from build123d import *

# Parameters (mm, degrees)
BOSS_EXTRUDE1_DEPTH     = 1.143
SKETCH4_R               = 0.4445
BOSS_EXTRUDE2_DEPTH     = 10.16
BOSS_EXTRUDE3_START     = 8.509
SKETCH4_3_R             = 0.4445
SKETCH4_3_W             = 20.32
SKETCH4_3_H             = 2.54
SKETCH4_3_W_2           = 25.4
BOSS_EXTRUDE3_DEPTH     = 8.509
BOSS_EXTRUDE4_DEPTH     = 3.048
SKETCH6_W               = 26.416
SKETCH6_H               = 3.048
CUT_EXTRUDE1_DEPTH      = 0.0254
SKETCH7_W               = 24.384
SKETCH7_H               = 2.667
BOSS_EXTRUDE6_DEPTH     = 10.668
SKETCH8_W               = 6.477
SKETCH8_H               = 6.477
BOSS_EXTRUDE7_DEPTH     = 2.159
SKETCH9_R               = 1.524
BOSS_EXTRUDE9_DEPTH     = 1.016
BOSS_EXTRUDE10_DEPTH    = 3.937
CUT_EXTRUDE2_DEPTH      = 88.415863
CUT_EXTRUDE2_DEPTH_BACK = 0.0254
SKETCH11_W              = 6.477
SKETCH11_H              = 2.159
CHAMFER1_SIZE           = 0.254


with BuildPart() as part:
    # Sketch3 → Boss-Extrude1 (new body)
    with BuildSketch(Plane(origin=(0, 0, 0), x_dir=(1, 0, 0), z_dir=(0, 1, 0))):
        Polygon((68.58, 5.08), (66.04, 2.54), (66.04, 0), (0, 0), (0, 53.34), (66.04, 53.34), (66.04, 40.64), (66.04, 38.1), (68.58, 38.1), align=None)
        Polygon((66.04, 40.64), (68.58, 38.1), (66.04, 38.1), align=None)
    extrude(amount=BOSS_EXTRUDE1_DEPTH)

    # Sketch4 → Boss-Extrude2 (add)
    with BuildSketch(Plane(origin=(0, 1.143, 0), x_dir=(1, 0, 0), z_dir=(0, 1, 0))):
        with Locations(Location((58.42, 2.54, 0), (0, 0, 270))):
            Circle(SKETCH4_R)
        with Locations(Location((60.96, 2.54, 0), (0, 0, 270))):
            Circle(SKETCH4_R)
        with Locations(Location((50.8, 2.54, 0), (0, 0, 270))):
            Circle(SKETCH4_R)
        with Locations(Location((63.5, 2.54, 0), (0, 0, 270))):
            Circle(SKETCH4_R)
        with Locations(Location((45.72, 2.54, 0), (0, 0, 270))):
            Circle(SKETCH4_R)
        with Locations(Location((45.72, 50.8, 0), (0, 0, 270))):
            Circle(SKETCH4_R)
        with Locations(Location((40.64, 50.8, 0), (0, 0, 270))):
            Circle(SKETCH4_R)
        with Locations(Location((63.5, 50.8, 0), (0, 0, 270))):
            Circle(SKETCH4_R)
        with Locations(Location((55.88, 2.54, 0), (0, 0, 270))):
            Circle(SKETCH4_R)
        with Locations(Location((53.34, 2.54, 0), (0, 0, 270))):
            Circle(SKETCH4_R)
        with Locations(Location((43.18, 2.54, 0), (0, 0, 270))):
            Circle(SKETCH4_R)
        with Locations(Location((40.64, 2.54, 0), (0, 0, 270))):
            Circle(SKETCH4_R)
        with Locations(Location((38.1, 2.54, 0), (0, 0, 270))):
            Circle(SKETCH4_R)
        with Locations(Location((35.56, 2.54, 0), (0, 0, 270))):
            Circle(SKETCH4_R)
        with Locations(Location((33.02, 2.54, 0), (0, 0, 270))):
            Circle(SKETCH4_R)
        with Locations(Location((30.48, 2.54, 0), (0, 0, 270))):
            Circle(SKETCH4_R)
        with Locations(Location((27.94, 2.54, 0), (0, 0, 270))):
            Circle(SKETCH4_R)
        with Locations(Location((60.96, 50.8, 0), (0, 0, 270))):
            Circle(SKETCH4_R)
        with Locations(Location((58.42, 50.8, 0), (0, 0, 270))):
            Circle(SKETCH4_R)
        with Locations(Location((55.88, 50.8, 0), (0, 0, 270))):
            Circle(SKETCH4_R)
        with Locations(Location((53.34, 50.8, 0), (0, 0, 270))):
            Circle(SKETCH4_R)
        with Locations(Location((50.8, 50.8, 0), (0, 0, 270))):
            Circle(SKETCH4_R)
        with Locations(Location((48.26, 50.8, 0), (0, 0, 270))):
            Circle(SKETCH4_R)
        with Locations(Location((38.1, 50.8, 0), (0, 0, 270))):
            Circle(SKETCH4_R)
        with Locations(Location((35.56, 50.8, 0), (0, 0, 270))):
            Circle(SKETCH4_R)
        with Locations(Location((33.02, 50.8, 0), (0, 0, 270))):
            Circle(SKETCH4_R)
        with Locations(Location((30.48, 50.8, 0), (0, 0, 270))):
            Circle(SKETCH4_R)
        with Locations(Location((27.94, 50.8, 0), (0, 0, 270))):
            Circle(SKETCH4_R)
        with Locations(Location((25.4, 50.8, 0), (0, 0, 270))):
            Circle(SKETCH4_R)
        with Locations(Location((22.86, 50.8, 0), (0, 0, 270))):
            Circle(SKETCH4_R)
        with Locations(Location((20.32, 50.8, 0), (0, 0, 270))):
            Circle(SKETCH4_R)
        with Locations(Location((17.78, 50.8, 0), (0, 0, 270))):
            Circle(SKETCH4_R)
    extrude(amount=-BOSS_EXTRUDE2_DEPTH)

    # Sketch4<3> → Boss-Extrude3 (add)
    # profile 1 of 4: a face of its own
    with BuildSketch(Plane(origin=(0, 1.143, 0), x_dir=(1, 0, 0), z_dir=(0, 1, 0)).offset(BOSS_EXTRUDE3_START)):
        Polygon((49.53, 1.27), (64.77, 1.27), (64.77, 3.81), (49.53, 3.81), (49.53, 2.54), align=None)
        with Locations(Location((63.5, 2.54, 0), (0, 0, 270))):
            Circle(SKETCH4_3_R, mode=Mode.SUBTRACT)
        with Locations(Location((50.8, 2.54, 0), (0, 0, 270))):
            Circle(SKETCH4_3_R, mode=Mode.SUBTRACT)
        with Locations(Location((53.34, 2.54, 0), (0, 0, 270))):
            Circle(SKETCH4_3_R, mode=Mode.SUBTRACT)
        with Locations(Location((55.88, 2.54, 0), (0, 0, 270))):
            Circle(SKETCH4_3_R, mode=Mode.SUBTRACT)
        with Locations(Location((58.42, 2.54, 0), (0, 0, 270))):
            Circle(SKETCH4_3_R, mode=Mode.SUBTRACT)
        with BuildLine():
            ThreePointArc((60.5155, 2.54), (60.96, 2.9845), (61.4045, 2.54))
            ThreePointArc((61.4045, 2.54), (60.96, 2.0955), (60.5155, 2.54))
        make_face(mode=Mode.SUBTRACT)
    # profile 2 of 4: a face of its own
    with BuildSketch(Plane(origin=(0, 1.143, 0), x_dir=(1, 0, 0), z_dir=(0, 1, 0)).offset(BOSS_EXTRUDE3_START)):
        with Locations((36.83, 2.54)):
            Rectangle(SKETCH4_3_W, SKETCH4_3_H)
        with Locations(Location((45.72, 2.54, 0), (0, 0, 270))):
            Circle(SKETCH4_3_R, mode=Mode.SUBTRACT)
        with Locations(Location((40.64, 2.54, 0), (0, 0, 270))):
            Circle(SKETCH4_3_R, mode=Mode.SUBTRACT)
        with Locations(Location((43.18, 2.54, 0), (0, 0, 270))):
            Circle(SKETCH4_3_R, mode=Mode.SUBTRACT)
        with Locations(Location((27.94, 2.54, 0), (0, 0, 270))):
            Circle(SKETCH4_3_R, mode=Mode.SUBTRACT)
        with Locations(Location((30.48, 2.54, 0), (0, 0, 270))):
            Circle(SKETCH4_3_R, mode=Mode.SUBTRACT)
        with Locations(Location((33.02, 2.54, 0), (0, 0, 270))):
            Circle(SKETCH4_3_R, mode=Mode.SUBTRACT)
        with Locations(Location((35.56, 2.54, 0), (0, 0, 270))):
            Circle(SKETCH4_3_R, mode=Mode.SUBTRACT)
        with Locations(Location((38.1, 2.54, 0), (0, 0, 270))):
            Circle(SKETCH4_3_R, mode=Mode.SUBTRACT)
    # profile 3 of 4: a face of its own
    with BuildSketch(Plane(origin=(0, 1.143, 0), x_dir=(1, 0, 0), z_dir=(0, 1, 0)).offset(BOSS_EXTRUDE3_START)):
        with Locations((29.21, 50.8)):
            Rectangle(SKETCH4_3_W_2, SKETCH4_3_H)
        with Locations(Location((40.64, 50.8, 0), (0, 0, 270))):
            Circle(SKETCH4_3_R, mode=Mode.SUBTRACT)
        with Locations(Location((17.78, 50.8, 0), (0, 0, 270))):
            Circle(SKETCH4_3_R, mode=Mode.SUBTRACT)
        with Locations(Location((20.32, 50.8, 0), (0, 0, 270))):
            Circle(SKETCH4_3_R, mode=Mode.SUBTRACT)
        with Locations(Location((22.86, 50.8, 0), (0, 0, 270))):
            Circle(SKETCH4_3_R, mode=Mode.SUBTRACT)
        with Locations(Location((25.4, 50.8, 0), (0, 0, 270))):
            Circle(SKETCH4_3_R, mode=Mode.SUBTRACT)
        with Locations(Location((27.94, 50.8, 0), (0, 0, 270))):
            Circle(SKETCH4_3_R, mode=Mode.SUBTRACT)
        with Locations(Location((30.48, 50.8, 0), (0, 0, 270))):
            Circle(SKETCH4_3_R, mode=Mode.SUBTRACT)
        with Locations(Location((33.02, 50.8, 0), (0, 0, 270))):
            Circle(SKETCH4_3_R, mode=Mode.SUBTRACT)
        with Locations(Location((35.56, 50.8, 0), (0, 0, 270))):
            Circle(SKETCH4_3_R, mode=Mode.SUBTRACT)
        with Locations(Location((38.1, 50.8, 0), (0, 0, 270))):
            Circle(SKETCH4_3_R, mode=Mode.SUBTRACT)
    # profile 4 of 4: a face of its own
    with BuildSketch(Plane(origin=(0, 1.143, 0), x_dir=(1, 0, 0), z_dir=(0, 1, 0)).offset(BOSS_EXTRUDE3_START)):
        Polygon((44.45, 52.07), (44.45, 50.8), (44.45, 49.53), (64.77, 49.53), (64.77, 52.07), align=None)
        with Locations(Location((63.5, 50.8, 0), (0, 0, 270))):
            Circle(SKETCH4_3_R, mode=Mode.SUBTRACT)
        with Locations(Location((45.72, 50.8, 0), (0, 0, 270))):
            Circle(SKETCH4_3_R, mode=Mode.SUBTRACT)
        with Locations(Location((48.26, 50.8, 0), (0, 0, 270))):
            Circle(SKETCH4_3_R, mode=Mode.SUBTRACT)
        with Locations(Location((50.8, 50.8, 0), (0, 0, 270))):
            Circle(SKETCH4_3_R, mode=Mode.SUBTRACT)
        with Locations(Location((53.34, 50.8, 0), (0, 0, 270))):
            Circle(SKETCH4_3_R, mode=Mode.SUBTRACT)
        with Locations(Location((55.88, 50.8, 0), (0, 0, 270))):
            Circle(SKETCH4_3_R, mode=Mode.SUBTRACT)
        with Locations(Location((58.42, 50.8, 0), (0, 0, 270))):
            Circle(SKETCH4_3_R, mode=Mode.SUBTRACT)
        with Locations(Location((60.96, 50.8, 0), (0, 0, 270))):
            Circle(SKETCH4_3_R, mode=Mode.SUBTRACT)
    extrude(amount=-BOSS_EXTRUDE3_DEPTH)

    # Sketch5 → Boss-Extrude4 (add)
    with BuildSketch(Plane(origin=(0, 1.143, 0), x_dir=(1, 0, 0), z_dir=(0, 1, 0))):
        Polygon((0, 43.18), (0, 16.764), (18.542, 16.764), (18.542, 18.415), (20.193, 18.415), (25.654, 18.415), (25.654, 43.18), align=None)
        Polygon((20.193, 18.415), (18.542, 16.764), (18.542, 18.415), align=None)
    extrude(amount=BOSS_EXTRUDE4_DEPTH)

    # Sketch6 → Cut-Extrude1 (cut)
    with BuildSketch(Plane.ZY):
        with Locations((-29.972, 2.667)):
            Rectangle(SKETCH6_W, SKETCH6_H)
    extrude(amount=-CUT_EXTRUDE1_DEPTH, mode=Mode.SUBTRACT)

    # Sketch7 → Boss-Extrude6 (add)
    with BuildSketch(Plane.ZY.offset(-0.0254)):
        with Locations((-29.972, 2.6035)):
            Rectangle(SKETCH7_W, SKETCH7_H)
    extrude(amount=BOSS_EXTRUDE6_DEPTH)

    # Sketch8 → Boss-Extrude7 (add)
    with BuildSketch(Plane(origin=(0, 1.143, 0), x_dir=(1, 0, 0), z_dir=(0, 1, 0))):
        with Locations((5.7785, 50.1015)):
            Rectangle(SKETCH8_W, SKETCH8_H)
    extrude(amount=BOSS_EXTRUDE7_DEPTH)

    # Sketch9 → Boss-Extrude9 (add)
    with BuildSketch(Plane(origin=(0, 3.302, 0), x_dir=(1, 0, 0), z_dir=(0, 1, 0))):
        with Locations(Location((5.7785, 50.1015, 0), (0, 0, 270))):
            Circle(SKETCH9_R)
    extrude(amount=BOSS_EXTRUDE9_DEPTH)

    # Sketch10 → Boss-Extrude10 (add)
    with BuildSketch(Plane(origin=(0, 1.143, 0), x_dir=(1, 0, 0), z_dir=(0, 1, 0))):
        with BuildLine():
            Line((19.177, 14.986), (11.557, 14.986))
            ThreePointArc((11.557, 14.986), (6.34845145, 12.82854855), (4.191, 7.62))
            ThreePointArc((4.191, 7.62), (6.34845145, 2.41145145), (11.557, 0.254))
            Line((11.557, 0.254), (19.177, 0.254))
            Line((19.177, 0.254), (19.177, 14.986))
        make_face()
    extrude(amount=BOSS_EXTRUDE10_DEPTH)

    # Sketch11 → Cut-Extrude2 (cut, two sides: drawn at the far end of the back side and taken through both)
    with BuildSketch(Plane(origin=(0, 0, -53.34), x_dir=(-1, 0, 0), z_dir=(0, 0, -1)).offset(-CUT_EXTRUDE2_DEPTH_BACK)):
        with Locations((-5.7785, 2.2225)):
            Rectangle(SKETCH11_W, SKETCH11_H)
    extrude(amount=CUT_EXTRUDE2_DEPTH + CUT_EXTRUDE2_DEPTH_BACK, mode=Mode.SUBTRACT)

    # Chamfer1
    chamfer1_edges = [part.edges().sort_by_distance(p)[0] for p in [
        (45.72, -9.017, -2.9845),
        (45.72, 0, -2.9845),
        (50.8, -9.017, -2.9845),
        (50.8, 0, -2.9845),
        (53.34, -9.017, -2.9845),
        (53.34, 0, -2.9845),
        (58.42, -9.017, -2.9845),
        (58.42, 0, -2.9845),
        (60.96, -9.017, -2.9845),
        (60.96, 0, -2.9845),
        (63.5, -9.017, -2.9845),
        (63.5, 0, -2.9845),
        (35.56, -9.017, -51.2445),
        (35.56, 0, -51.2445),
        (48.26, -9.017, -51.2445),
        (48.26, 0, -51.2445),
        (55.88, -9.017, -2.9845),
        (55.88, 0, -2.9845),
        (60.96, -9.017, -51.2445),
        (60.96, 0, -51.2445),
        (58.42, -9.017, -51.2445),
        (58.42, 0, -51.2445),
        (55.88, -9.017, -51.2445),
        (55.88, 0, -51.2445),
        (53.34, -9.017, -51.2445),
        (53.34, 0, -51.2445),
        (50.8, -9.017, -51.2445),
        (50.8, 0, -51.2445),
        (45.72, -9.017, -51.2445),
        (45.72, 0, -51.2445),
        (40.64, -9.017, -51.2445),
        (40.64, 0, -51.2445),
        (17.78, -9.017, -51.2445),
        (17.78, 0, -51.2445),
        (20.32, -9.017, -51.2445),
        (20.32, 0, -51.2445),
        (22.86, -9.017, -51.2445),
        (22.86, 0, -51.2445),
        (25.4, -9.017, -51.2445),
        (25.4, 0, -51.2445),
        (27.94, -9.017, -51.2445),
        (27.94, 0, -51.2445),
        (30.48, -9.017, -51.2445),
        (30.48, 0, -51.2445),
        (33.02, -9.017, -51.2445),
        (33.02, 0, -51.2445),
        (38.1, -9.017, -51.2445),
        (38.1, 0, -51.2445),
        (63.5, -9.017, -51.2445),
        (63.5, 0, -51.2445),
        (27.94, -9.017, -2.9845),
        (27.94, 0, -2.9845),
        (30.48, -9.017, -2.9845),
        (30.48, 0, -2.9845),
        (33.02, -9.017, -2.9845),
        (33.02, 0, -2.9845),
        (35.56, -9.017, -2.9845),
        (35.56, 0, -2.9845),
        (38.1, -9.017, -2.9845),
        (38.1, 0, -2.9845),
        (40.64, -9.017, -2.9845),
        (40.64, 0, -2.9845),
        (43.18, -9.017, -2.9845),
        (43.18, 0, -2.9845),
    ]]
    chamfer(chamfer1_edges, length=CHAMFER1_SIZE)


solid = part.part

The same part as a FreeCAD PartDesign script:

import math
import FreeCAD as App
import Part
import Sketcher
Q = App.Units.Quantity


def edges_at(feature, points):
    """Names of the edges that pass closest to the given points."""
    edges = feature.Shape.Edges
    near = lambda p: min(range(len(edges)), key=lambda i: edges[i].distToShape(Part.Vertex(*p))[0])
    return sorted({f"Edge{near(p) + 1}" for p in points})


def add_polygon(sketch, points):
    """Adds a closed chain of lines whose ends are joined by coincident constraints."""
    first, n = sketch.GeometryCount, len(points)
    for a, b in zip(points, points[1:] + points[:1]):
        sketch.addGeometry(Part.LineSegment(App.Vector(*a, 0), App.Vector(*b, 0)), False)
    for i in range(n):
        sketch.addConstraint(Sketcher.Constraint("Coincident", first + i, 2, first + (i + 1) % n, 1))

doc = App.newDocument("Part")
body = doc.addObject("PartDesign::Body", "Body")

# Sketch on XZ plane
sketch1 = body.newObject("Sketcher::SketchObject", "Sketch")
sketch1.AttachmentSupport = (doc.getObject("XZ_Plane"), [""])
sketch1.MapMode = "FlatFace"
add_polygon(sketch1, [(66, -2.5), (68.6, -5.1), (68.6, -38.1), (66, -40.6), (66, -53.3), (0, -53.3), (0, 0), (66, 0)])  # lines 0-7
sketch1.addConstraint(Sketcher.Constraint("Vertical", 1))
sketch1.addConstraint(Sketcher.Constraint("Vertical", 3))
sketch1.addConstraint(Sketcher.Constraint("Horizontal", 4))
sketch1.addConstraint(Sketcher.Constraint("Vertical", 5))
sketch1.addConstraint(Sketcher.Constraint("Horizontal", 6))
sketch1.addConstraint(Sketcher.Constraint("Vertical", 7))
sketch1.addConstraint(Sketcher.Constraint("Coincident", 5, 2, -1, 1))
sketch1.addConstraint(Sketcher.Constraint("Perpendicular", 0, 2))
sketch1.addConstraint(Sketcher.Constraint("Vertical", 3, 2, 6, 2))
sketch1.addConstraint(Sketcher.Constraint("Equal", 0, 2))
sketch1.addConstraint(Sketcher.Constraint("DistanceX", 4, 2, 4, 1, Q("2.6 in")))
sketch1.addConstraint(Sketcher.Constraint("DistanceY", 1, 2, 1, 1, Q("1.3 in")))
sketch1.addConstraint(Sketcher.Constraint("DistanceY", 3, 2, 3, 1, Q("0.5 in")))
sketch1.addConstraint(Sketcher.Constraint("DistanceY", 5, 1, 5, 2, Q("2.1 in")))
sketch1.addConstraint(Sketcher.Constraint("DistanceY", 7, 2, 7, 1, Q("0.1 in")))
pad1 = body.newObject("PartDesign::Pad", "Pad")
pad1.Profile = sketch1
pad1.Length = Q("0.045 in")
pad1.Reversed = True

# Sketch on XZ plane
sketch2 = body.newObject("Sketcher::SketchObject", "Sketch001")
sketch2.AttachmentSupport = (doc.getObject("XZ_Plane"), [""])
sketch2.MapMode = "FlatFace"
sketch2.AttachmentOffset = App.Placement(App.Vector(0, 0, -0.045 * 25.4), App.Rotation())
sketch2.addGeometry(Part.Circle(App.Vector(58.42, -2.54, 0), App.Vector(0, 0, 1), 0.44), False)
sketch2.addGeometry(Part.Circle(App.Vector(60.96, -2.54, 0), App.Vector(0, 0, 1), 0.44), False)
sketch2.addGeometry(Part.Circle(App.Vector(50.8, -2.54, 0), App.Vector(0, 0, 1), 0.44), False)
sketch2.addGeometry(Part.Circle(App.Vector(63.5, -2.54, 0), App.Vector(0, 0, 1), 0.44), False)
sketch2.addGeometry(Part.Circle(App.Vector(45.72, -2.54, 0), App.Vector(0, 0, 1), 0.44), False)
sketch2.addGeometry(Part.Circle(App.Vector(45.72, -50.8, 0), App.Vector(0, 0, 1), 0.44), False)
sketch2.addGeometry(Part.Circle(App.Vector(40.64, -50.8, 0), App.Vector(0, 0, 1), 0.44), False)
sketch2.addGeometry(Part.Circle(App.Vector(63.5, -50.8, 0), App.Vector(0, 0, 1), 0.44), False)
sketch2.addGeometry(Part.Circle(App.Vector(55.88, -2.54, 0), App.Vector(0, 0, 1), 0.44), False)
sketch2.addGeometry(Part.Circle(App.Vector(53.34, -2.54, 0), App.Vector(0, 0, 1), 0.44), False)
sketch2.addGeometry(Part.Circle(App.Vector(43.18, -2.54, 0), App.Vector(0, 0, 1), 0.44), False)
sketch2.addGeometry(Part.Circle(App.Vector(40.64, -2.54, 0), App.Vector(0, 0, 1), 0.44), False)
sketch2.addGeometry(Part.Circle(App.Vector(38.1, -2.54, 0), App.Vector(0, 0, 1), 0.44), False)
sketch2.addGeometry(Part.Circle(App.Vector(35.56, -2.54, 0), App.Vector(0, 0, 1), 0.44), False)
sketch2.addGeometry(Part.Circle(App.Vector(33.02, -2.54, 0), App.Vector(0, 0, 1), 0.44), False)
sketch2.addGeometry(Part.Circle(App.Vector(30.48, -2.54, 0), App.Vector(0, 0, 1), 0.44), False)
sketch2.addGeometry(Part.Circle(App.Vector(27.94, -2.54, 0), App.Vector(0, 0, 1), 0.44), False)
sketch2.addGeometry(Part.Circle(App.Vector(60.96, -50.8, 0), App.Vector(0, 0, 1), 0.44), False)
sketch2.addGeometry(Part.Circle(App.Vector(58.42, -50.8, 0), App.Vector(0, 0, 1), 0.44), False)
sketch2.addGeometry(Part.Circle(App.Vector(55.88, -50.8, 0), App.Vector(0, 0, 1), 0.44), False)
sketch2.addGeometry(Part.Circle(App.Vector(53.34, -50.8, 0), App.Vector(0, 0, 1), 0.44), False)
sketch2.addGeometry(Part.Circle(App.Vector(50.8, -50.8, 0), App.Vector(0, 0, 1), 0.44), False)
sketch2.addGeometry(Part.Circle(App.Vector(48.26, -50.8, 0), App.Vector(0, 0, 1), 0.44), False)
sketch2.addGeometry(Part.Circle(App.Vector(38.1, -50.8, 0), App.Vector(0, 0, 1), 0.44), False)
sketch2.addGeometry(Part.Circle(App.Vector(35.56, -50.8, 0), App.Vector(0, 0, 1), 0.44), False)
sketch2.addGeometry(Part.Circle(App.Vector(33.02, -50.8, 0), App.Vector(0, 0, 1), 0.44), False)
sketch2.addGeometry(Part.Circle(App.Vector(30.48, -50.8, 0), App.Vector(0, 0, 1), 0.44), False)
sketch2.addGeometry(Part.Circle(App.Vector(27.94, -50.8, 0), App.Vector(0, 0, 1), 0.44), False)
sketch2.addGeometry(Part.Circle(App.Vector(25.4, -50.8, 0), App.Vector(0, 0, 1), 0.44), False)
sketch2.addGeometry(Part.Circle(App.Vector(22.86, -50.8, 0), App.Vector(0, 0, 1), 0.44), False)
sketch2.addGeometry(Part.Circle(App.Vector(20.32, -50.8, 0), App.Vector(0, 0, 1), 0.44), False)
sketch2.addGeometry(Part.Circle(App.Vector(17.78, -50.8, 0), App.Vector(0, 0, 1), 0.44), False)
sketch2.addConstraint(Sketcher.Constraint("Equal", 0, 1))
sketch2.addConstraint(Sketcher.Constraint("Equal", 1, 2))
sketch2.addConstraint(Sketcher.Constraint("Equal", 2, 3))
sketch2.addConstraint(Sketcher.Constraint("Equal", 3, 4))
sketch2.addConstraint(Sketcher.Constraint("Equal", 4, 5))
sketch2.addConstraint(Sketcher.Constraint("Equal", 5, 6))
sketch2.addConstraint(Sketcher.Constraint("Equal", 6, 7))
sketch2.addConstraint(Sketcher.Constraint("Equal", 7, 8))
sketch2.addConstraint(Sketcher.Constraint("Equal", 8, 9))
sketch2.addConstraint(Sketcher.Constraint("Equal", 9, 10))
sketch2.addConstraint(Sketcher.Constraint("Equal", 10, 11))
sketch2.addConstraint(Sketcher.Constraint("Equal", 11, 12))
sketch2.addConstraint(Sketcher.Constraint("Equal", 12, 13))
sketch2.addConstraint(Sketcher.Constraint("Equal", 13, 14))
sketch2.addConstraint(Sketcher.Constraint("Equal", 14, 15))
sketch2.addConstraint(Sketcher.Constraint("Equal", 15, 16))
sketch2.addConstraint(Sketcher.Constraint("Equal", 16, 17))
sketch2.addConstraint(Sketcher.Constraint("Equal", 17, 18))
sketch2.addConstraint(Sketcher.Constraint("Equal", 18, 19))
sketch2.addConstraint(Sketcher.Constraint("Equal", 19, 20))
sketch2.addConstraint(Sketcher.Constraint("Equal", 20, 21))
sketch2.addConstraint(Sketcher.Constraint("Equal", 21, 22))
sketch2.addConstraint(Sketcher.Constraint("Equal", 22, 23))
sketch2.addConstraint(Sketcher.Constraint("Equal", 23, 24))
sketch2.addConstraint(Sketcher.Constraint("Equal", 24, 25))
sketch2.addConstraint(Sketcher.Constraint("Equal", 25, 26))
sketch2.addConstraint(Sketcher.Constraint("Equal", 26, 27))
sketch2.addConstraint(Sketcher.Constraint("Equal", 27, 28))
sketch2.addConstraint(Sketcher.Constraint("Equal", 28, 29))
sketch2.addConstraint(Sketcher.Constraint("Equal", 29, 30))
sketch2.addConstraint(Sketcher.Constraint("Equal", 30, 31))
sketch2.addConstraint(Sketcher.Constraint("Horizontal", 0, 3, 1, 3))
sketch2.addConstraint(Sketcher.Constraint("Horizontal", 1, 3, 2, 3))
sketch2.addConstraint(Sketcher.Constraint("Horizontal", 2, 3, 3, 3))
sketch2.addConstraint(Sketcher.Constraint("Horizontal", 3, 3, 4, 3))
sketch2.addConstraint(Sketcher.Constraint("Horizontal", 5, 3, 6, 3))
sketch2.addConstraint(Sketcher.Constraint("Horizontal", 6, 3, 7, 3))
sketch2.addConstraint(Sketcher.Constraint("Horizontal", 4, 3, 8, 3))
sketch2.addConstraint(Sketcher.Constraint("Horizontal", 8, 3, 9, 3))
sketch2.addConstraint(Sketcher.Constraint("Horizontal", 9, 3, 10, 3))
sketch2.addConstraint(Sketcher.Constraint("Horizontal", 10, 3, 11, 3))
sketch2.addConstraint(Sketcher.Constraint("Horizontal", 11, 3, 12, 3))
sketch2.addConstraint(Sketcher.Constraint("Horizontal", 12, 3, 13, 3))
sketch2.addConstraint(Sketcher.Constraint("Horizontal", 13, 3, 14, 3))
sketch2.addConstraint(Sketcher.Constraint("Horizontal", 14, 3, 15, 3))
sketch2.addConstraint(Sketcher.Constraint("Horizontal", 15, 3, 16, 3))
sketch2.addConstraint(Sketcher.Constraint("Horizontal", 7, 3, 17, 3))
sketch2.addConstraint(Sketcher.Constraint("Horizontal", 17, 3, 18, 3))
sketch2.addConstraint(Sketcher.Constraint("Horizontal", 18, 3, 19, 3))
sketch2.addConstraint(Sketcher.Constraint("Horizontal", 19, 3, 20, 3))
sketch2.addConstraint(Sketcher.Constraint("Horizontal", 20, 3, 21, 3))
sketch2.addConstraint(Sketcher.Constraint("Horizontal", 21, 3, 22, 3))
sketch2.addConstraint(Sketcher.Constraint("Horizontal", 22, 3, 23, 3))
sketch2.addConstraint(Sketcher.Constraint("Horizontal", 23, 3, 24, 3))
sketch2.addConstraint(Sketcher.Constraint("Horizontal", 24, 3, 25, 3))
sketch2.addConstraint(Sketcher.Constraint("Horizontal", 25, 3, 26, 3))
sketch2.addConstraint(Sketcher.Constraint("Horizontal", 26, 3, 27, 3))
sketch2.addConstraint(Sketcher.Constraint("Horizontal", 27, 3, 28, 3))
sketch2.addConstraint(Sketcher.Constraint("Horizontal", 28, 3, 29, 3))
sketch2.addConstraint(Sketcher.Constraint("Horizontal", 29, 3, 30, 3))
sketch2.addConstraint(Sketcher.Constraint("Horizontal", 30, 3, 31, 3))
sketch2.addConstraint(Sketcher.Constraint("Vertical", 4, 3, 5, 3))
sketch2.addConstraint(Sketcher.Constraint("Vertical", 3, 3, 7, 3))
sketch2.addConstraint(Sketcher.Constraint("Vertical", 6, 3, 11, 3))
sketch2.addConstraint(Sketcher.Constraint("Vertical", 1, 3, 17, 3))
sketch2.addConstraint(Sketcher.Constraint("Vertical", 0, 3, 18, 3))
sketch2.addConstraint(Sketcher.Constraint("Vertical", 8, 3, 19, 3))
sketch2.addConstraint(Sketcher.Constraint("Vertical", 9, 3, 20, 3))
sketch2.addConstraint(Sketcher.Constraint("Vertical", 2, 3, 21, 3))
sketch2.addConstraint(Sketcher.Constraint("Vertical", 12, 3, 23, 3))
sketch2.addConstraint(Sketcher.Constraint("Vertical", 13, 3, 24, 3))
sketch2.addConstraint(Sketcher.Constraint("Vertical", 14, 3, 25, 3))
sketch2.addConstraint(Sketcher.Constraint("Vertical", 15, 3, 26, 3))
sketch2.addConstraint(Sketcher.Constraint("Vertical", 16, 3, 27, 3))
sketch2.addConstraint(Sketcher.Constraint("Diameter", 0, Q("0.035 in")))
sketch2.addConstraint(Sketcher.Constraint("DistanceX", -1, 1, 2, 3, Q("2 in")))
sketch2.addConstraint(Sketcher.Constraint("DistanceY", 5, 3, -1, 1, Q("2 in")))
sketch2.addConstraint(Sketcher.Constraint("DistanceX", -1, 1, 28, 3, Q("1 in")))
sketch2.addConstraint(Sketcher.Constraint("DistanceX", -1, 1, 0, 3, Q("2.3 in")))
sketch2.addConstraint(Sketcher.Constraint("DistanceY", 0, 3, -1, 1, Q("0.1 in")))
sketch2.addConstraint(Sketcher.Constraint("DistanceX", -1, 1, 1, 3, Q("2.4 in")))
sketch2.addConstraint(Sketcher.Constraint("DistanceX", -1, 1, 3, 3, Q("2.5 in")))
sketch2.addConstraint(Sketcher.Constraint("DistanceX", -1, 1, 4, 3, Q("1.8 in")))
sketch2.addConstraint(Sketcher.Constraint("DistanceX", -1, 1, 6, 3, Q("1.6 in")))
sketch2.addConstraint(Sketcher.Constraint("DistanceX", -1, 1, 8, 3, Q("2.2 in")))
sketch2.addConstraint(Sketcher.Constraint("DistanceX", -1, 1, 9, 3, Q("2.1 in")))
sketch2.addConstraint(Sketcher.Constraint("DistanceX", -1, 1, 10, 3, Q("1.7 in")))
sketch2.addConstraint(Sketcher.Constraint("DistanceX", -1, 1, 12, 3, Q("1.5 in")))
sketch2.addConstraint(Sketcher.Constraint("DistanceX", -1, 1, 13, 3, Q("1.4 in")))
sketch2.addConstraint(Sketcher.Constraint("DistanceX", -1, 1, 14, 3, Q("1.3 in")))
sketch2.addConstraint(Sketcher.Constraint("DistanceX", -1, 1, 15, 3, Q("1.2 in")))
sketch2.addConstraint(Sketcher.Constraint("DistanceX", -1, 1, 16, 3, Q("1.1 in")))
sketch2.addConstraint(Sketcher.Constraint("DistanceX", -1, 1, 22, 3, Q("1.9 in")))
sketch2.addConstraint(Sketcher.Constraint("DistanceX", -1, 1, 29, 3, Q("0.9 in")))
sketch2.addConstraint(Sketcher.Constraint("DistanceX", -1, 1, 30, 3, Q("0.8 in")))
sketch2.addConstraint(Sketcher.Constraint("DistanceX", -1, 1, 31, 3, Q("0.7 in")))
pad2 = body.newObject("PartDesign::Pad", "Pad001")
pad2.Profile = sketch2
pad2.Length = Q("0.4 in")

# Sketch on XZ plane
sketch3 = body.newObject("Sketcher::SketchObject", "Sketch002")
sketch3.AttachmentSupport = (doc.getObject("XZ_Plane"), [""])
sketch3.MapMode = "FlatFace"
sketch3.AttachmentOffset = App.Placement(App.Vector(0, 0, -0.38 * 25.4), App.Rotation())
add_polygon(sketch3, [(49.53, -1.27), (64.77, -1.27), (64.77, -3.81), (49.53, -3.81)])  # lines 0-3
sketch3.addGeometry(Part.Circle(App.Vector(60.96, -2.54, 0), App.Vector(0, 0, 1), 0.44), False)  # 4
sketch3.addGeometry(Part.Circle(App.Vector(50.8, -2.54, 0), App.Vector(0, 0, 1), 0.44), False)  # 5
sketch3.addGeometry(Part.Circle(App.Vector(53.34, -2.54, 0), App.Vector(0, 0, 1), 0.44), False)  # 6
sketch3.addGeometry(Part.Circle(App.Vector(55.88, -2.54, 0), App.Vector(0, 0, 1), 0.44), False)  # 7
sketch3.addGeometry(Part.Circle(App.Vector(58.42, -2.54, 0), App.Vector(0, 0, 1), 0.44), False)  # 8
sketch3.addGeometry(Part.Circle(App.Vector(63.5, -2.54, 0), App.Vector(0, 0, 1), 0.44), False)  # 9
add_polygon(sketch3, [(26.67, -3.81), (26.67, -1.27), (46.99, -1.27), (46.99, -3.81)])  # lines 10-13
sketch3.addGeometry(Part.Circle(App.Vector(27.94, -2.54, 0), App.Vector(0, 0, 1), 0.44), False)  # 14
sketch3.addGeometry(Part.Circle(App.Vector(30.48, -2.54, 0), App.Vector(0, 0, 1), 0.44), False)  # 15
sketch3.addGeometry(Part.Circle(App.Vector(33.02, -2.54, 0), App.Vector(0, 0, 1), 0.44), False)  # 16
sketch3.addGeometry(Part.Circle(App.Vector(35.56, -2.54, 0), App.Vector(0, 0, 1), 0.44), False)  # 17
sketch3.addGeometry(Part.Circle(App.Vector(38.1, -2.54, 0), App.Vector(0, 0, 1), 0.44), False)  # 18
sketch3.addGeometry(Part.Circle(App.Vector(40.64, -2.54, 0), App.Vector(0, 0, 1), 0.44), False)  # 19
sketch3.addGeometry(Part.Circle(App.Vector(43.18, -2.54, 0), App.Vector(0, 0, 1), 0.44), False)  # 20
sketch3.addGeometry(Part.Circle(App.Vector(45.72, -2.54, 0), App.Vector(0, 0, 1), 0.44), False)  # 21
add_polygon(sketch3, [(16.51, -52.07), (16.51, -49.53), (41.91, -49.53), (41.91, -52.07)])  # lines 22-25
sketch3.addGeometry(Part.Circle(App.Vector(17.78, -50.8, 0), App.Vector(0, 0, 1), 0.44), False)  # 26
sketch3.addGeometry(Part.Circle(App.Vector(20.32, -50.8, 0), App.Vector(0, 0, 1), 0.44), False)  # 27
sketch3.addGeometry(Part.Circle(App.Vector(22.86, -50.8, 0), App.Vector(0, 0, 1), 0.44), False)  # 28
sketch3.addGeometry(Part.Circle(App.Vector(25.4, -50.8, 0), App.Vector(0, 0, 1), 0.44), False)  # 29
sketch3.addGeometry(Part.Circle(App.Vector(27.94, -50.8, 0), App.Vector(0, 0, 1), 0.44), False)  # 30
sketch3.addGeometry(Part.Circle(App.Vector(30.48, -50.8, 0), App.Vector(0, 0, 1), 0.44), False)  # 31
sketch3.addGeometry(Part.Circle(App.Vector(33.02, -50.8, 0), App.Vector(0, 0, 1), 0.44), False)  # 32
sketch3.addGeometry(Part.Circle(App.Vector(35.56, -50.8, 0), App.Vector(0, 0, 1), 0.44), False)  # 33
sketch3.addGeometry(Part.Circle(App.Vector(38.1, -50.8, 0), App.Vector(0, 0, 1), 0.44), False)  # 34
sketch3.addGeometry(Part.Circle(App.Vector(40.64, -50.8, 0), App.Vector(0, 0, 1), 0.44), False)  # 35
add_polygon(sketch3, [(44.45, -52.07), (44.45, -49.53), (64.77, -49.53), (64.77, -52.07)])  # lines 36-39
sketch3.addGeometry(Part.Circle(App.Vector(45.72, -50.8, 0), App.Vector(0, 0, 1), 0.44), False)  # 40
sketch3.addGeometry(Part.Circle(App.Vector(48.26, -50.8, 0), App.Vector(0, 0, 1), 0.44), False)  # 41
sketch3.addGeometry(Part.Circle(App.Vector(50.8, -50.8, 0), App.Vector(0, 0, 1), 0.44), False)  # 42
sketch3.addGeometry(Part.Circle(App.Vector(53.34, -50.8, 0), App.Vector(0, 0, 1), 0.44), False)  # 43
sketch3.addGeometry(Part.Circle(App.Vector(55.88, -50.8, 0), App.Vector(0, 0, 1), 0.44), False)  # 44
sketch3.addGeometry(Part.Circle(App.Vector(58.42, -50.8, 0), App.Vector(0, 0, 1), 0.44), False)  # 45
sketch3.addGeometry(Part.Circle(App.Vector(60.96, -50.8, 0), App.Vector(0, 0, 1), 0.44), False)  # 46
sketch3.addGeometry(Part.Circle(App.Vector(63.5, -50.8, 0), App.Vector(0, 0, 1), 0.44), False)  # 47
sketch3.addConstraint(Sketcher.Constraint("Horizontal", 0))
sketch3.addConstraint(Sketcher.Constraint("Vertical", 1))
sketch3.addConstraint(Sketcher.Constraint("Horizontal", 2))
sketch3.addConstraint(Sketcher.Constraint("Vertical", 3))
sketch3.addConstraint(Sketcher.Constraint("Vertical", 10))
sketch3.addConstraint(Sketcher.Constraint("Horizontal", 11))
sketch3.addConstraint(Sketcher.Constraint("Vertical", 12))
sketch3.addConstraint(Sketcher.Constraint("Horizontal", 13))
sketch3.addConstraint(Sketcher.Constraint("Vertical", 22))
sketch3.addConstraint(Sketcher.Constraint("Horizontal", 23))
sketch3.addConstraint(Sketcher.Constraint("Vertical", 24))
sketch3.addConstraint(Sketcher.Constraint("Horizontal", 25))
sketch3.addConstraint(Sketcher.Constraint("Vertical", 36))
sketch3.addConstraint(Sketcher.Constraint("Horizontal", 37))
sketch3.addConstraint(Sketcher.Constraint("Vertical", 38))
sketch3.addConstraint(Sketcher.Constraint("Horizontal", 39))
sketch3.addConstraint(Sketcher.Constraint("Equal", 4, 5))
sketch3.addConstraint(Sketcher.Constraint("Equal", 5, 6))
sketch3.addConstraint(Sketcher.Constraint("Equal", 6, 7))
sketch3.addConstraint(Sketcher.Constraint("Equal", 7, 8))
sketch3.addConstraint(Sketcher.Constraint("Equal", 8, 9))
sketch3.addConstraint(Sketcher.Constraint("Equal", 9, 14))
sketch3.addConstraint(Sketcher.Constraint("Equal", 14, 15))
sketch3.addConstraint(Sketcher.Constraint("Equal", 15, 16))
sketch3.addConstraint(Sketcher.Constraint("Equal", 16, 17))
sketch3.addConstraint(Sketcher.Constraint("Equal", 17, 18))
sketch3.addConstraint(Sketcher.Constraint("Equal", 18, 19))
sketch3.addConstraint(Sketcher.Constraint("Equal", 19, 20))
sketch3.addConstraint(Sketcher.Constraint("Equal", 20, 21))
sketch3.addConstraint(Sketcher.Constraint("Equal", 21, 26))
sketch3.addConstraint(Sketcher.Constraint("Equal", 26, 27))
sketch3.addConstraint(Sketcher.Constraint("Equal", 27, 28))
sketch3.addConstraint(Sketcher.Constraint("Equal", 28, 29))
sketch3.addConstraint(Sketcher.Constraint("Equal", 29, 30))
sketch3.addConstraint(Sketcher.Constraint("Equal", 30, 31))
sketch3.addConstraint(Sketcher.Constraint("Equal", 31, 32))
sketch3.addConstraint(Sketcher.Constraint("Equal", 32, 33))
sketch3.addConstraint(Sketcher.Constraint("Equal", 33, 34))
sketch3.addConstraint(Sketcher.Constraint("Equal", 34, 35))
sketch3.addConstraint(Sketcher.Constraint("Equal", 35, 40))
sketch3.addConstraint(Sketcher.Constraint("Equal", 40, 41))
sketch3.addConstraint(Sketcher.Constraint("Equal", 41, 42))
sketch3.addConstraint(Sketcher.Constraint("Equal", 42, 43))
sketch3.addConstraint(Sketcher.Constraint("Equal", 43, 44))
sketch3.addConstraint(Sketcher.Constraint("Equal", 44, 45))
sketch3.addConstraint(Sketcher.Constraint("Equal", 45, 46))
sketch3.addConstraint(Sketcher.Constraint("Equal", 46, 47))
sketch3.addConstraint(Sketcher.Constraint("Horizontal", 4, 3, 5, 3))
sketch3.addConstraint(Sketcher.Constraint("Horizontal", 5, 3, 6, 3))
sketch3.addConstraint(Sketcher.Constraint("Horizontal", 6, 3, 7, 3))
sketch3.addConstraint(Sketcher.Constraint("Horizontal", 7, 3, 8, 3))
sketch3.addConstraint(Sketcher.Constraint("Horizontal", 8, 3, 9, 3))
sketch3.addConstraint(Sketcher.Constraint("Horizontal", 9, 3, 14, 3))
sketch3.addConstraint(Sketcher.Constraint("Horizontal", 14, 3, 15, 3))
sketch3.addConstraint(Sketcher.Constraint("Horizontal", 15, 3, 16, 3))
sketch3.addConstraint(Sketcher.Constraint("Horizontal", 16, 3, 17, 3))
sketch3.addConstraint(Sketcher.Constraint("Horizontal", 17, 3, 18, 3))
sketch3.addConstraint(Sketcher.Constraint("Horizontal", 18, 3, 19, 3))
sketch3.addConstraint(Sketcher.Constraint("Horizontal", 19, 3, 20, 3))
sketch3.addConstraint(Sketcher.Constraint("Horizontal", 20, 3, 21, 3))
sketch3.addConstraint(Sketcher.Constraint("Horizontal", 26, 3, 27, 3))
sketch3.addConstraint(Sketcher.Constraint("Horizontal", 27, 3, 28, 3))
sketch3.addConstraint(Sketcher.Constraint("Horizontal", 28, 3, 29, 3))
sketch3.addConstraint(Sketcher.Constraint("Horizontal", 29, 3, 30, 3))
sketch3.addConstraint(Sketcher.Constraint("Horizontal", 30, 3, 31, 3))
sketch3.addConstraint(Sketcher.Constraint("Horizontal", 31, 3, 32, 3))
sketch3.addConstraint(Sketcher.Constraint("Horizontal", 32, 3, 33, 3))
sketch3.addConstraint(Sketcher.Constraint("Horizontal", 33, 3, 34, 3))
sketch3.addConstraint(Sketcher.Constraint("Horizontal", 34, 3, 35, 3))
sketch3.addConstraint(Sketcher.Constraint("Horizontal", 35, 3, 40, 3))
sketch3.addConstraint(Sketcher.Constraint("Horizontal", 40, 3, 41, 3))
sketch3.addConstraint(Sketcher.Constraint("Horizontal", 41, 3, 42, 3))
sketch3.addConstraint(Sketcher.Constraint("Horizontal", 42, 3, 43, 3))
sketch3.addConstraint(Sketcher.Constraint("Horizontal", 43, 3, 44, 3))
sketch3.addConstraint(Sketcher.Constraint("Horizontal", 44, 3, 45, 3))
sketch3.addConstraint(Sketcher.Constraint("Horizontal", 45, 3, 46, 3))
sketch3.addConstraint(Sketcher.Constraint("Horizontal", 46, 3, 47, 3))
sketch3.addConstraint(Sketcher.Constraint("Horizontal", 3, 2, 10, 2))
sketch3.addConstraint(Sketcher.Constraint("Horizontal", 2, 2, 12, 2))
sketch3.addConstraint(Sketcher.Constraint("Horizontal", 23, 2, 36, 2))
sketch3.addConstraint(Sketcher.Constraint("Horizontal", 25, 2, 38, 2))
sketch3.addConstraint(Sketcher.Constraint("Vertical", 14, 3, 30, 3))
sketch3.addConstraint(Sketcher.Constraint("Vertical", 15, 3, 31, 3))
sketch3.addConstraint(Sketcher.Constraint("Vertical", 16, 3, 32, 3))
sketch3.addConstraint(Sketcher.Constraint("Vertical", 17, 3, 33, 3))
sketch3.addConstraint(Sketcher.Constraint("Vertical", 18, 3, 34, 3))
sketch3.addConstraint(Sketcher.Constraint("Vertical", 19, 3, 35, 3))
sketch3.addConstraint(Sketcher.Constraint("Vertical", 21, 3, 40, 3))
sketch3.addConstraint(Sketcher.Constraint("Vertical", 5, 3, 42, 3))
sketch3.addConstraint(Sketcher.Constraint("Vertical", 6, 3, 43, 3))
sketch3.addConstraint(Sketcher.Constraint("Vertical", 7, 3, 44, 3))
sketch3.addConstraint(Sketcher.Constraint("Vertical", 8, 3, 45, 3))
sketch3.addConstraint(Sketcher.Constraint("Vertical", 4, 3, 46, 3))
sketch3.addConstraint(Sketcher.Constraint("Vertical", 9, 3, 47, 3))
sketch3.addConstraint(Sketcher.Constraint("Vertical", 1, 2, 37, 2))
sketch3.addConstraint(Sketcher.Constraint("Equal", 13, 37))
sketch3.addConstraint(Sketcher.Constraint("Equal", 12, 22))
sketch3.addConstraint(Sketcher.Constraint("DistanceX", 23, 1, 23, 2, Q("1 in")))
sketch3.addConstraint(Sketcher.Constraint("Diameter", 4, Q("0.035 in")))
sketch3.addConstraint(Sketcher.Constraint("DistanceX", 0, 1, 0, 2, Q("0.6 in")))
sketch3.addConstraint(Sketcher.Constraint("DistanceX", 11, 1, 11, 2, Q("0.8 in")))
sketch3.addConstraint(Sketcher.Constraint("DistanceY", 1, 2, 1, 1, Q("0.1 in")))
sketch3.addConstraint(Sketcher.Constraint("DistanceX", -1, 1, 5, 3, Q("2 in")))
sketch3.addConstraint(Sketcher.Constraint("DistanceY", 26, 3, -1, 1, Q("2 in")))
sketch3.addConstraint(Sketcher.Constraint("DistanceX", -1, 1, 29, 3, Q("1 in")))
sketch3.addConstraint(Sketcher.Constraint("DistanceX", 14, 3, 6, 3, Q("1 in")))
sketch3.addConstraint(Sketcher.Constraint("DistanceX", 15, 3, 7, 3, Q("1 in")))
sketch3.addConstraint(Sketcher.Constraint("DistanceX", -1, 1, 4, 3, Q("2.4 in")))
sketch3.addConstraint(Sketcher.Constraint("DistanceY", 4, 3, -1, 1, Q("0.1 in")))
sketch3.addConstraint(Sketcher.Constraint("DistanceX", -1, 1, 6, 3, Q("2.1 in")))
sketch3.addConstraint(Sketcher.Constraint("DistanceX", -1, 1, 7, 3, Q("2.2 in")))
sketch3.addConstraint(Sketcher.Constraint("DistanceX", -1, 1, 8, 3, Q("2.3 in")))
sketch3.addConstraint(Sketcher.Constraint("DistanceX", -1, 1, 9, 3, Q("2.5 in")))
sketch3.addConstraint(Sketcher.Constraint("DistanceX", -1, 1, 16, 3, Q("1.3 in")))
sketch3.addConstraint(Sketcher.Constraint("DistanceX", -1, 1, 17, 3, Q("1.4 in")))
sketch3.addConstraint(Sketcher.Constraint("DistanceX", -1, 1, 18, 3, Q("1.5 in")))
sketch3.addConstraint(Sketcher.Constraint("DistanceX", -1, 1, 19, 3, Q("1.6 in")))
sketch3.addConstraint(Sketcher.Constraint("DistanceX", -1, 1, 20, 3, Q("1.7 in")))
sketch3.addConstraint(Sketcher.Constraint("DistanceX", -1, 1, 21, 3, Q("1.8 in")))
sketch3.addConstraint(Sketcher.Constraint("DistanceX", -1, 1, 26, 3, Q("0.7 in")))
sketch3.addConstraint(Sketcher.Constraint("DistanceX", -1, 1, 27, 3, Q("0.8 in")))
sketch3.addConstraint(Sketcher.Constraint("DistanceX", -1, 1, 28, 3, Q("0.9 in")))
sketch3.addConstraint(Sketcher.Constraint("DistanceX", -1, 1, 41, 3, Q("1.9 in")))
sketch3.addConstraint(Sketcher.Constraint("DistanceX", 11, 2, 3, 2, Q("0.1 in")))
sketch3.addConstraint(Sketcher.Constraint("DistanceX", 23, 2, 36, 2, Q("0.1 in")))
sketch3.addConstraint(Sketcher.Constraint("DistanceX", -1, 1, 0, 2, Q("2.55 in")))
sketch3.addConstraint(Sketcher.Constraint("DistanceY", 0, 2, -1, 1, Q("0.05 in")))
sketch3.addConstraint(Sketcher.Constraint("DistanceY", 22, 2, -1, 1, Q("1.95 in")))
pad3 = body.newObject("PartDesign::Pad", "Pad002")
pad3.Profile = sketch3
pad3.Length = Q("0.335 in")

# Sketch on XZ plane
sketch4 = body.newObject("Sketcher::SketchObject", "Sketch003")
sketch4.AttachmentSupport = (doc.getObject("XZ_Plane"), [""])
sketch4.MapMode = "FlatFace"
sketch4.AttachmentOffset = App.Placement(App.Vector(0, 0, -0.045 * 25.4), App.Rotation())
add_polygon(sketch4, [(0, -43.2), (0, -16.8), (18.5, -16.8), (20.2, -18.4), (25.7, -18.4), (25.7, -43.2)])  # lines 0-5
sketch4.addConstraint(Sketcher.Constraint("Vertical", 0))
sketch4.addConstraint(Sketcher.Constraint("Horizontal", 1))
sketch4.addConstraint(Sketcher.Constraint("Horizontal", 3))
sketch4.addConstraint(Sketcher.Constraint("Vertical", 4))
sketch4.addConstraint(Sketcher.Constraint("Horizontal", 5))
sketch4.addConstraint(Sketcher.Constraint("PointOnObject", 0, 2, -2))
sketch4.addConstraint(Sketcher.Constraint("Angle", 2, Q("-45 deg")))
sketch4.addConstraint(Sketcher.Constraint("DistanceX", 1, 1, 1, 2, Q("0.73 in")))
sketch4.addConstraint(Sketcher.Constraint("DistanceX", 5, 2, 5, 1, Q("1.01 in")))
sketch4.addConstraint(Sketcher.Constraint("DistanceY", 0, 1, 0, 2, Q("1.04 in")))
sketch4.addConstraint(Sketcher.Constraint("DistanceY", 4, 2, -1, 1, Q("1.7 in")))
sketch4.addConstraint(Sketcher.Constraint("DistanceX", 3, 1, 3, 2, Q("0.215 in")))
pad4 = body.newObject("PartDesign::Pad", "Pad003")
pad4.Profile = sketch4
pad4.Length = Q("0.12 in")
pad4.Reversed = True

# Sketch on YZ plane
sketch5 = body.newObject("Sketcher::SketchObject", "Sketch004")
sketch5.AttachmentSupport = (doc.getObject("YZ_Plane"), [""])
sketch5.MapMode = "FlatFace"
add_polygon(sketch5, [(4.2, -43.2), (1.1, -43.2), (1.1, -16.8), (4.2, -16.8)])  # lines 0-3
sketch5.addConstraint(Sketcher.Constraint("Horizontal", 0))
sketch5.addConstraint(Sketcher.Constraint("Vertical", 1))
sketch5.addConstraint(Sketcher.Constraint("Horizontal", 2))
sketch5.addConstraint(Sketcher.Constraint("Vertical", 3))
sketch5.addConstraint(Sketcher.Constraint("DistanceX", 0, 2, 0, 1, Q("0.12 in")))
sketch5.addConstraint(Sketcher.Constraint("DistanceY", 1, 1, 1, 2, Q("1.04 in")))
sketch5.addConstraint(Sketcher.Constraint("DistanceY", 0, 2, -1, 1, Q("1.7 in")))
sketch5.addConstraint(Sketcher.Constraint("DistanceX", -1, 1, 0, 2, Q("0.045 in")))
pocket1 = body.newObject("PartDesign::Pocket", "Pocket")
pocket1.Profile = sketch5
pocket1.Length = Q("0.001 in")
pocket1.Reversed = True

# Sketch on YZ plane
sketch6 = body.newObject("Sketcher::SketchObject", "Sketch005")
sketch6.AttachmentSupport = (doc.getObject("YZ_Plane"), [""])
sketch6.MapMode = "FlatFace"
sketch6.AttachmentOffset = App.Placement(App.Vector(0, 0, 0.001 * 25.4), App.Rotation())
add_polygon(sketch6, [(3.9, -42.2), (1.3, -42.2), (1.3, -17.8), (3.9, -17.8)])  # lines 0-3
sketch6.addConstraint(Sketcher.Constraint("Horizontal", 0))
sketch6.addConstraint(Sketcher.Constraint("Vertical", 1))
sketch6.addConstraint(Sketcher.Constraint("Horizontal", 2))
sketch6.addConstraint(Sketcher.Constraint("Vertical", 3))
sketch6.addConstraint(Sketcher.Constraint("DistanceY", 1, 1, 1, 2, Q("0.96 in")))
sketch6.addConstraint(Sketcher.Constraint("DistanceY", 1, 2, -1, 1, Q("0.7 in")))
sketch6.addConstraint(Sketcher.Constraint("DistanceX", 0, 2, 0, 1, Q("0.105 in")))
sketch6.addConstraint(Sketcher.Constraint("DistanceX", -1, 1, 0, 2, Q("0.05 in")))
pad5 = body.newObject("PartDesign::Pad", "Pad004")
pad5.Profile = sketch6
pad5.Length = Q("0.42 in")
pad5.Reversed = True

# Sketch on XZ plane
sketch7 = body.newObject("Sketcher::SketchObject", "Sketch006")
sketch7.AttachmentSupport = (doc.getObject("XZ_Plane"), [""])
sketch7.MapMode = "FlatFace"
sketch7.AttachmentOffset = App.Placement(App.Vector(0, 0, -0.045 * 25.4), App.Rotation())
add_polygon(sketch7, [(3, -53), (3, -47), (9, -47), (9, -53)])  # lines 0-3
sketch7.addConstraint(Sketcher.Constraint("Vertical", 0))
sketch7.addConstraint(Sketcher.Constraint("Horizontal", 1))
sketch7.addConstraint(Sketcher.Constraint("Vertical", 2))
sketch7.addConstraint(Sketcher.Constraint("Horizontal", 3))
sketch7.addConstraint(Sketcher.Constraint("Equal", 3, 0))
sketch7.addConstraint(Sketcher.Constraint("DistanceX", -1, 1, 0, 2, Q("0.1 in")))
sketch7.addConstraint(Sketcher.Constraint("DistanceY", 2, 2, -1, 1, Q("2.1 in")))
sketch7.addConstraint(Sketcher.Constraint("DistanceX", 1, 1, 1, 2, Q("0.255 in")))
pad6 = body.newObject("PartDesign::Pad", "Pad005")
pad6.Profile = sketch7
pad6.Length = Q("0.085 in")
pad6.Reversed = True

# Sketch on XZ plane
sketch8 = body.newObject("Sketcher::SketchObject", "Sketch007")
sketch8.AttachmentSupport = (doc.getObject("XZ_Plane"), [""])
sketch8.MapMode = "FlatFace"
sketch8.AttachmentOffset = App.Placement(App.Vector(0, 0, -0.13 * 25.4), App.Rotation())
sketch8.addGeometry(Part.Circle(App.Vector(5.8, -50.1, 0), App.Vector(0, 0, 1), 1.5), False)
sketch8.addConstraint(Sketcher.Constraint("Diameter", 0, Q("0.12 in")))
sketch8.addConstraint(Sketcher.Constraint("DistanceX", -1, 1, 0, 3, Q("0.2275 in")))
sketch8.addConstraint(Sketcher.Constraint("DistanceY", 0, 3, -1, 1, Q("1.9725 in")))
pad7 = body.newObject("PartDesign::Pad", "Pad006")
pad7.Profile = sketch8
pad7.Length = Q("0.04 in")
pad7.Reversed = True

# Sketch on XZ plane
sketch9 = body.newObject("Sketcher::SketchObject", "Sketch008")
sketch9.AttachmentSupport = (doc.getObject("XZ_Plane"), [""])
sketch9.MapMode = "FlatFace"
sketch9.AttachmentOffset = App.Placement(App.Vector(0, 0, -0.045 * 25.4), App.Rotation())
sketch9.addGeometry(Part.LineSegment(App.Vector(19, -15, 0), App.Vector(12, -15, 0)), False)
sketch9.addGeometry(Part.ArcOfCircle(Part.Circle(App.Vector(12, -8, 0), App.Vector(0, 0, 1), 7), math.radians(-180), math.radians(-90)), False)
sketch9.addGeometry(Part.ArcOfCircle(Part.Circle(App.Vector(12, -8, 0), App.Vector(0, 0, 1), 7), math.radians(90), math.radians(180)), False)
sketch9.addGeometry(Part.LineSegment(App.Vector(12, 0, 0), App.Vector(19, 0, 0)), False)
sketch9.addGeometry(Part.LineSegment(App.Vector(19, 0, 0), App.Vector(19, -15, 0)), False)
sketch9.addConstraint(Sketcher.Constraint("Tangent", 0, 2, 1, 2))
sketch9.addConstraint(Sketcher.Constraint("Tangent", 1, 1, 2, 2))
sketch9.addConstraint(Sketcher.Constraint("Tangent", 2, 1, 3, 1))
sketch9.addConstraint(Sketcher.Constraint("Coincident", 3, 2, 4, 1))
sketch9.addConstraint(Sketcher.Constraint("Coincident", 4, 2, 0, 1))
sketch9.addConstraint(Sketcher.Constraint("Horizontal", 0))
sketch9.addConstraint(Sketcher.Constraint("Horizontal", 3))
sketch9.addConstraint(Sketcher.Constraint("Vertical", 4))
sketch9.addConstraint(Sketcher.Constraint("Equal", 1, 2))
sketch9.addConstraint(Sketcher.Constraint("Horizontal", 2, 3, 1, 1))
sketch9.addConstraint(Sketcher.Constraint("Radius", 1, Q("0.29 in")))
sketch9.addConstraint(Sketcher.Constraint("DistanceX", 0, 2, 0, 1, Q("0.3 in")))
sketch9.addConstraint(Sketcher.Constraint("DistanceY", 1, 3, -1, 1, Q("0.3 in")))
sketch9.addConstraint(Sketcher.Constraint("DistanceX", -1, 1, 1, 3, Q("0.455 in")))
pad8 = body.newObject("PartDesign::Pad", "Pad007")
pad8.Profile = sketch9
pad8.Length = Q("0.155 in")
pad8.Reversed = True

# Sketch on XY plane
sketch10 = body.newObject("Sketcher::SketchObject", "Sketch009")
sketch10.AttachmentSupport = (doc.getObject("XY_Plane"), [""])
sketch10.MapMode = "FlatFace"
sketch10.AttachmentOffset = App.Placement(App.Vector(0, 0, -2.1 * 25.4), App.Rotation())
add_polygon(sketch10, [(9, 3.3), (9, 1.1), (2.5, 1.1), (2.5, 3.3)])  # lines 0-3
sketch10.addConstraint(Sketcher.Constraint("Vertical", 0))
sketch10.addConstraint(Sketcher.Constraint("Horizontal", 1))
sketch10.addConstraint(Sketcher.Constraint("Vertical", 2))
sketch10.addConstraint(Sketcher.Constraint("Horizontal", 3))
sketch10.addConstraint(Sketcher.Constraint("DistanceX", -1, 1, 1, 2, Q("0.1 in")))
sketch10.addConstraint(Sketcher.Constraint("DistanceX", 1, 2, 1, 1, Q("0.255 in")))
sketch10.addConstraint(Sketcher.Constraint("DistanceY", 0, 2, 0, 1, Q("0.085 in")))
sketch10.addConstraint(Sketcher.Constraint("DistanceY", -1, 1, 2, 2, Q("0.13 in")))
pocket2 = body.newObject("PartDesign::Pocket", "Pocket001")
pocket2.Profile = sketch10
pocket2.Type = "TwoLengths"
pocket2.Length = 88.415863
pocket2.Length2 = Q("0.001 in")
doc.recompute()

chamfer = body.newObject("PartDesign::Chamfer", "Chamfer")
chamfer.Base = (pocket2, edges_at(pocket2, [
    (45.72, -9.017, -2.985),
    (45.72, 0, -2.985),
    (50.8, -9.017, -2.985),
    (50.8, 0, -2.985),
    (53.34, -9.017, -2.985),
    (53.34, 0, -2.985),
    (58.42, -9.017, -2.985),
    (58.42, 0, -2.985),
    (60.96, -9.017, -2.985),
    (60.96, 0, -2.985),
    (63.5, -9.017, -2.985),
    (63.5, 0, -2.985),
    (35.56, -9.017, -51.245),
    (35.56, 0, -51.245),
    (48.26, -9.017, -51.245),
    (48.26, 0, -51.245),
    (55.88, -9.017, -2.985),
    (55.88, 0, -2.985),
    (60.96, -9.017, -51.245),
    (60.96, 0, -51.245),
    (58.42, -9.017, -51.245),
    (58.42, 0, -51.245),
    (55.88, -9.017, -51.245),
    (55.88, 0, -51.245),
    (53.34, -9.017, -51.245),
    (53.34, 0, -51.245),
    (50.8, -9.017, -51.245),
    (50.8, 0, -51.245),
    (45.72, -9.017, -51.245),
    (45.72, 0, -51.245),
    (40.64, -9.017, -51.245),
    (40.64, 0, -51.245),
    (17.78, -9.017, -51.245),
    (17.78, 0, -51.245),
    (20.32, -9.017, -51.245),
    (20.32, 0, -51.245),
    (22.86, -9.017, -51.245),
    (22.86, 0, -51.245),
    (25.4, -9.017, -51.245),
    (25.4, 0, -51.245),
    (27.94, -9.017, -51.245),
    (27.94, 0, -51.245),
    (30.48, -9.017, -51.245),
    (30.48, 0, -51.245),
    (33.02, -9.017, -51.245),
    (33.02, 0, -51.245),
    (38.1, -9.017, -51.245),
    (38.1, 0, -51.245),
    (63.5, -9.017, -51.245),
    (63.5, 0, -51.245),
    (27.94, -9.017, -2.985),
    (27.94, 0, -2.985),
    (30.48, -9.017, -2.985),
    (30.48, 0, -2.985),
    (33.02, -9.017, -2.985),
    (33.02, 0, -2.985),
    (35.56, -9.017, -2.985),
    (35.56, 0, -2.985),
    (38.1, -9.017, -2.985),
    (38.1, 0, -2.985),
    (40.64, -9.017, -2.985),
    (40.64, 0, -2.985),
    (43.18, -9.017, -2.985),
    (43.18, 0, -2.985),
]))
chamfer.Size = Q("0.01 in")

doc.recompute()
